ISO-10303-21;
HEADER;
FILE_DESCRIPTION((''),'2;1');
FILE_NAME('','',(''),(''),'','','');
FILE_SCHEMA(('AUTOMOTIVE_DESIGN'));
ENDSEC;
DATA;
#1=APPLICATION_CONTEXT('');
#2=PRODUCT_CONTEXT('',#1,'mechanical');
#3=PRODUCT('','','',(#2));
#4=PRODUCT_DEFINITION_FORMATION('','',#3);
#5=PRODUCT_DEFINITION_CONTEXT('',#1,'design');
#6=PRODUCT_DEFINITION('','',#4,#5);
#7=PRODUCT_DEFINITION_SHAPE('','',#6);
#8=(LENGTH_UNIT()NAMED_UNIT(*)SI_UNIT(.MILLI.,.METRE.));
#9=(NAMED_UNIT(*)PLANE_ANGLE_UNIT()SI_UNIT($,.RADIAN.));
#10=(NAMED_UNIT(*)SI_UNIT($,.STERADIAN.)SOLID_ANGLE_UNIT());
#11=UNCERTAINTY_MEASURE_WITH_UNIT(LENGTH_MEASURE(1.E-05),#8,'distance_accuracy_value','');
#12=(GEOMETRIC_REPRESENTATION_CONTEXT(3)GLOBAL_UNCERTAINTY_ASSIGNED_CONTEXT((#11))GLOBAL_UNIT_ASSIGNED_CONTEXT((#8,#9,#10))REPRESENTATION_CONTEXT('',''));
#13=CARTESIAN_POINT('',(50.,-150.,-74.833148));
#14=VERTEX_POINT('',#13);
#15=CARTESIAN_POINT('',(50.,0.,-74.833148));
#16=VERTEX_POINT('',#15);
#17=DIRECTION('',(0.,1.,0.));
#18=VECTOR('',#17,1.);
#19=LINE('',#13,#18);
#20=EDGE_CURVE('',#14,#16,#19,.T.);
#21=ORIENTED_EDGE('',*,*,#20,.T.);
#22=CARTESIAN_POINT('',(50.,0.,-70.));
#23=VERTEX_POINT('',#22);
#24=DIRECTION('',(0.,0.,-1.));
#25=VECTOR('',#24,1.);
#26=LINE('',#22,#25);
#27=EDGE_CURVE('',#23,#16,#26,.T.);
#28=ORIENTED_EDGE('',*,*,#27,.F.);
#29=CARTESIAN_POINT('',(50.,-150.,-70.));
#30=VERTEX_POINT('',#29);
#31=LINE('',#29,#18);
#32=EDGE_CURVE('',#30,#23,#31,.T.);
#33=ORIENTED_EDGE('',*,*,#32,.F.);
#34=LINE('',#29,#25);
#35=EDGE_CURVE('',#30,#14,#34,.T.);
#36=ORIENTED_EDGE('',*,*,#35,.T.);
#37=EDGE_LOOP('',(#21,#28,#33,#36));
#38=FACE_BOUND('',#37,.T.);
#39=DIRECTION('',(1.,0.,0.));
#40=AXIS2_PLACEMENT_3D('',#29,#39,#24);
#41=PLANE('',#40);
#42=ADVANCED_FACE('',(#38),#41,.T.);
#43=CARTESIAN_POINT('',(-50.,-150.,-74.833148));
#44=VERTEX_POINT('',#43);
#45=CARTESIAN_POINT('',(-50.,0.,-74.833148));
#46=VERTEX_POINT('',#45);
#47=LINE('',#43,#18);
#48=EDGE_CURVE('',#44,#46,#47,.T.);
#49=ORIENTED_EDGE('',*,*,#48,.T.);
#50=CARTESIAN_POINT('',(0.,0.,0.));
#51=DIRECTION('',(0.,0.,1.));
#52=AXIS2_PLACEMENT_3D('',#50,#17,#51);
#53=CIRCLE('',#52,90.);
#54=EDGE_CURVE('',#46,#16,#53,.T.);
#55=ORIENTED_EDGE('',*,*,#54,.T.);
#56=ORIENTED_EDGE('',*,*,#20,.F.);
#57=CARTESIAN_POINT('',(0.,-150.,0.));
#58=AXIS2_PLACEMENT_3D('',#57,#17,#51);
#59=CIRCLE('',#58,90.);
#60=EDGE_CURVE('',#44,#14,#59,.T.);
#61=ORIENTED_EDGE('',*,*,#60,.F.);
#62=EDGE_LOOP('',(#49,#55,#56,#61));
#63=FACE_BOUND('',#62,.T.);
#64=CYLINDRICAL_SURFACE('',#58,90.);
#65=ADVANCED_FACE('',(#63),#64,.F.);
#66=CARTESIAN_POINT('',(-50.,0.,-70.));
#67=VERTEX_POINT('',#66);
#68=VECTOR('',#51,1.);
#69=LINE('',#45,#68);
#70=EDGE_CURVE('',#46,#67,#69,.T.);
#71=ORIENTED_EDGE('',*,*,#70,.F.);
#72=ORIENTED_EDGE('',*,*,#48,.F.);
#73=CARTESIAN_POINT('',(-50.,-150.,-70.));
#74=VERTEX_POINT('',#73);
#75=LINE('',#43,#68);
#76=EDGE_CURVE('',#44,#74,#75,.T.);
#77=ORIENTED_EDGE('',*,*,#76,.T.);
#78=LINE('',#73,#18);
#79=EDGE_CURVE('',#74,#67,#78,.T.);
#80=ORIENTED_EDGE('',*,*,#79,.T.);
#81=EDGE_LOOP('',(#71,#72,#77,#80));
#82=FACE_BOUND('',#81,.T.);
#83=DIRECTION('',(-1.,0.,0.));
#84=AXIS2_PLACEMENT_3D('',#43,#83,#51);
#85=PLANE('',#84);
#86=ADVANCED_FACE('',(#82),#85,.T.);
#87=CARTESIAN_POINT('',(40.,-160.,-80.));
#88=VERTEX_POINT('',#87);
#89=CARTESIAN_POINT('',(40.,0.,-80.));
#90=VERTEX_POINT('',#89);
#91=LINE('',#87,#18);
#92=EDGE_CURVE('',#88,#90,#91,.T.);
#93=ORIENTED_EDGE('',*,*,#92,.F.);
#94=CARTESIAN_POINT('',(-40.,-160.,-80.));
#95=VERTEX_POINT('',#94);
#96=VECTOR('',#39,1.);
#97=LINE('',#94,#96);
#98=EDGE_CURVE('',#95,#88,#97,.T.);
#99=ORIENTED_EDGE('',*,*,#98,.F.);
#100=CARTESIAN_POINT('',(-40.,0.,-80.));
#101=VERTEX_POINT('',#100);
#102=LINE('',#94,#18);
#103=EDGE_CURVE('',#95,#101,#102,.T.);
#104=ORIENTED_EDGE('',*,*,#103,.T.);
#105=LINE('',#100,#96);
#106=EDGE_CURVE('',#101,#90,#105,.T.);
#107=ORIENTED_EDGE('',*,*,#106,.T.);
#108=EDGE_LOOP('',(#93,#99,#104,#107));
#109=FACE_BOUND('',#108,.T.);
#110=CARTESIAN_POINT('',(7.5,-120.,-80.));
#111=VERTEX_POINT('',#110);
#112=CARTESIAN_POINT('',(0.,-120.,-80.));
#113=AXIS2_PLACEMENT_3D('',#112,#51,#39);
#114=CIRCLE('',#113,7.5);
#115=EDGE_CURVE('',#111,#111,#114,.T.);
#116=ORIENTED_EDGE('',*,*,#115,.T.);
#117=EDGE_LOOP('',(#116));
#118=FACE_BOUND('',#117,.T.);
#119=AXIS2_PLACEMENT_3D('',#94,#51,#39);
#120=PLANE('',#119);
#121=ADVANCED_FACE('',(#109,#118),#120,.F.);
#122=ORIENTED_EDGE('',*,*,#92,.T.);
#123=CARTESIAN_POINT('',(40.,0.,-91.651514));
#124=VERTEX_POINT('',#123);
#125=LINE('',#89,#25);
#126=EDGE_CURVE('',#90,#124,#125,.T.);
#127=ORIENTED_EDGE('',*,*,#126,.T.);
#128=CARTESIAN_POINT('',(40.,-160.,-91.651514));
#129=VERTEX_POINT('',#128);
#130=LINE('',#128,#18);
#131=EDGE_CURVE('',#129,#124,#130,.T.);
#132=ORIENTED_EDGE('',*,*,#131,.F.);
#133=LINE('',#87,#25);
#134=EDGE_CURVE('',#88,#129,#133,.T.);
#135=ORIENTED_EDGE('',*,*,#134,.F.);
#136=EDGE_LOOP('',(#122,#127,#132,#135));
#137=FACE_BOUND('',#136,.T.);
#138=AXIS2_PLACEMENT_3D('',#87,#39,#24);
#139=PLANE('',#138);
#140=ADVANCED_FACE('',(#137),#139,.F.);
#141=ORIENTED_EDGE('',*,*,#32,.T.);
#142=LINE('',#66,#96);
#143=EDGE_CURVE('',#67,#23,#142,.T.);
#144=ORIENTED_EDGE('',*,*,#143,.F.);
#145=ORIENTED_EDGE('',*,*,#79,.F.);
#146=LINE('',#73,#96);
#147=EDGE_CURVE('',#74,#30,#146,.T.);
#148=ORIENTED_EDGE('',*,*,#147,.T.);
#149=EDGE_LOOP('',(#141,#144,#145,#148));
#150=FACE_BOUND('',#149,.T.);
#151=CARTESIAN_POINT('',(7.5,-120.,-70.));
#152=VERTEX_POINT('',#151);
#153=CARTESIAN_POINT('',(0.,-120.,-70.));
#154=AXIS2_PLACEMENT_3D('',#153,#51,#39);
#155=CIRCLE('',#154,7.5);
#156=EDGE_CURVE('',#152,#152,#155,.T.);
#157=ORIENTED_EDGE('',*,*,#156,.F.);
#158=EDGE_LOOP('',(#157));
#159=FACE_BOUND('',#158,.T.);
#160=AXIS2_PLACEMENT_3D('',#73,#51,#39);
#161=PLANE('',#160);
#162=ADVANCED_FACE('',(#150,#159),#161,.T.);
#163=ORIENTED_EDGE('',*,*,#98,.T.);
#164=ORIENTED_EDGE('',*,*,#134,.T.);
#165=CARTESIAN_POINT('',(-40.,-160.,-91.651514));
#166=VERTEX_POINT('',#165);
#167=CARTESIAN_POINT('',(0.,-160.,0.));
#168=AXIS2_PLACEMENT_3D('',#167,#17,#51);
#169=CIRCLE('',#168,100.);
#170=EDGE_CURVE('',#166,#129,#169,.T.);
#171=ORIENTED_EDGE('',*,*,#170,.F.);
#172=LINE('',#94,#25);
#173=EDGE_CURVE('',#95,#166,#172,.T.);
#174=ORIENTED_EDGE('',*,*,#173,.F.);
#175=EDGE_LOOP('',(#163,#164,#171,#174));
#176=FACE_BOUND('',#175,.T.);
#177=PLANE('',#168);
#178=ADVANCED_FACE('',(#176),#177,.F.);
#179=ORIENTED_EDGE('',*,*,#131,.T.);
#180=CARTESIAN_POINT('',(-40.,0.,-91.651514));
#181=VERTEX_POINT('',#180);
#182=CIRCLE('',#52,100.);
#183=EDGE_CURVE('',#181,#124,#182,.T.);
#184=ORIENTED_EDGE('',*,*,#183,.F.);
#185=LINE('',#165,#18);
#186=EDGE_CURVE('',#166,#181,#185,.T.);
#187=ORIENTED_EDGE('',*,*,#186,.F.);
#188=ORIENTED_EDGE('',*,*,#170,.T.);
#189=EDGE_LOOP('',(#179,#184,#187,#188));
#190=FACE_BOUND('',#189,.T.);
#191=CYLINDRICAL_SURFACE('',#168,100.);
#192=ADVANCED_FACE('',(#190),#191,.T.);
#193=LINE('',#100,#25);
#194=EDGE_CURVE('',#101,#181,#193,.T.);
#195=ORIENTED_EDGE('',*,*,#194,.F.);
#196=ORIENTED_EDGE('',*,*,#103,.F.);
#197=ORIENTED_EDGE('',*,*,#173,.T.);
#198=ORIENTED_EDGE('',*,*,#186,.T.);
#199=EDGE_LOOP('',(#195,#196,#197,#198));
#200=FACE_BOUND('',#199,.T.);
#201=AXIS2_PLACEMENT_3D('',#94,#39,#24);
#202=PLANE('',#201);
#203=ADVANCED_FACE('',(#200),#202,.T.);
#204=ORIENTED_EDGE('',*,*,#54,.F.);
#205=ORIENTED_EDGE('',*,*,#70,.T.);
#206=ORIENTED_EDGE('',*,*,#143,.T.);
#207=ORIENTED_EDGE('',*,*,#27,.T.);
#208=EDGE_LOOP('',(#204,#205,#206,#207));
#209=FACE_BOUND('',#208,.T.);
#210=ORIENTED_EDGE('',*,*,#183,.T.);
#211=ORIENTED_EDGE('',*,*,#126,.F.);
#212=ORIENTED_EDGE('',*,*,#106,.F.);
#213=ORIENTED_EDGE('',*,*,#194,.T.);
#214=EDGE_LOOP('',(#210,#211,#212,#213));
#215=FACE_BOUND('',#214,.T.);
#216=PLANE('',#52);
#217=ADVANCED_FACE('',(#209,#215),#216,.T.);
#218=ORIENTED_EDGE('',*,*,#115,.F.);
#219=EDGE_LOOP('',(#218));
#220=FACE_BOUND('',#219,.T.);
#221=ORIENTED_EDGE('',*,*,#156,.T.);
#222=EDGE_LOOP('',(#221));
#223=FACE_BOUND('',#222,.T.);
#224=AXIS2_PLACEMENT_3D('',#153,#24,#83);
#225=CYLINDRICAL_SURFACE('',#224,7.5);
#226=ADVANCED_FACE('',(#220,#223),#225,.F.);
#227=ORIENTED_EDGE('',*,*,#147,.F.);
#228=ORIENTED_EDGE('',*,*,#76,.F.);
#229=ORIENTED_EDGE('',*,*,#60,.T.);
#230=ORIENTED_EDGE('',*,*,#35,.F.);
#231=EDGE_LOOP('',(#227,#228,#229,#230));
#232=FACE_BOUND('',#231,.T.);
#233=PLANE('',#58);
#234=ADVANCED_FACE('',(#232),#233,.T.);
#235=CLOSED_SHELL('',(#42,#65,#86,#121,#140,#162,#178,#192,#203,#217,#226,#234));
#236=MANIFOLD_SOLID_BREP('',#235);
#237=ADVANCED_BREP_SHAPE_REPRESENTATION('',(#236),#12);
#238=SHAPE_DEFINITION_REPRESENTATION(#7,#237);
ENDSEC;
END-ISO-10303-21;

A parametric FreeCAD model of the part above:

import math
import FreeCAD as App
import Part
import Sketcher

V = App.Vector
Q = App.Units.Quantity

doc = App.newDocument("Part")
params = doc.addObject("Spreadsheet::Sheet", "Params")
for row, (alias, value) in enumerate([
    ("sketch1_radius", "100 mm"),
    ("sketch1_width", "80 mm"),
    ("pad1_length", "160 mm"),
    ("sketch2_radius", "90 mm"),
    ("sketch2_width", "100 mm"),
    ("pocket1_length", "150 mm"),
    ("sketch3_diameter", "15 mm"),
    ("pocket2_length", "10 mm"),
], start=1):
    params.set(f"A{row}", alias)
    params.set(f"B{row}", "=" + value)
    params.setAlias(f"B{row}", alias)

body = doc.addObject("PartDesign::Body", "Body")

# Sketch on XZ plane
sketch1 = body.newObject("Sketcher::SketchObject", "Sketch")
sketch1.AttachmentSupport = (doc.getObject("XZ_Plane"), [""])
sketch1.MapMode = "FlatFace"
sketch1.addGeometry([
    Part.LineSegment(V(40, -80, 0), V(-40, -80, 0)),
    Part.LineSegment(V(-40, -80, 0), V(-40, -91.651514, 0)),
    Part.ArcOfCircle(Part.Circle(V(0, 0, 0), V(0, 0, 1), 100), math.radians(-66.421822), math.radians(246.421822)),
    Part.LineSegment(V(40, -91.651514, 0), V(40, -80, 0)),
], False)
sketch1.addConstraint([
    Sketcher.Constraint("Coincident", 0, 2, 1, 1),
    Sketcher.Constraint("Coincident", 1, 2, 2, 2),
    Sketcher.Constraint("Coincident", 2, 1, 3, 1),
    Sketcher.Constraint("Coincident", 3, 2, 0, 1),
    Sketcher.Constraint("Horizontal", 0),
    Sketcher.Constraint("Vertical", 1),
    Sketcher.Constraint("Vertical", 3),
    Sketcher.Constraint("Coincident", 2, 3, -1, 1),
    Sketcher.Constraint("Horizontal", 1, 2, 2, 1),
    Sketcher.Constraint("Radius", 2, Q("100 mm")),
    Sketcher.Constraint("DistanceX", 0, 2, 0, 1, Q("80 mm")),
    Sketcher.Constraint("DistanceY", 0, 2, -1, 1, Q("80 mm")),
])
sketch1.setExpression("Constraints[9]", "Params.sketch1_radius")
sketch1.setExpression("Constraints[10]", "Params.sketch1_width")
pad1 = body.newObject("PartDesign::Pad", "Pad")
pad1.Profile = sketch1
pad1.setExpression("Length", "Params.pad1_length")

# Sketch on XZ plane
sketch2 = body.newObject("Sketcher::SketchObject", "Sketch001")
sketch2.AttachmentSupport = (doc.getObject("XZ_Plane"), [""])
sketch2.MapMode = "FlatFace"
sketch2.addGeometry([
    Part.LineSegment(V(-50, -70, 0), V(-50, -74.833148, 0)),
    Part.ArcOfCircle(Part.Circle(V(0, 0, 0), V(0, 0, 1), 90), math.radians(-56.251011), math.radians(236.251011)),
    Part.LineSegment(V(50, -74.833148, 0), V(50, -70, 0)),
    Part.LineSegment(V(50, -70, 0), V(-50, -70, 0)),
], False)
sketch2.addConstraint([
    Sketcher.Constraint("Coincident", 0, 2, 1, 2),
    Sketcher.Constraint("Coincident", 1, 1, 2, 1),
    Sketcher.Constraint("Coincident", 2, 2, 3, 1),
    Sketcher.Constraint("Coincident", 3, 2, 0, 1),
    Sketcher.Constraint("Vertical", 0),
    Sketcher.Constraint("Vertical", 2),
    Sketcher.Constraint("Horizontal", 3),
    Sketcher.Constraint("Coincident", 1, 3, -1, 1),
    Sketcher.Constraint("Horizontal", 0, 2, 1, 1),
    Sketcher.Constraint("Radius", 1, Q("90 mm")),
    Sketcher.Constraint("DistanceX", 3, 2, 3, 1, Q("100 mm")),
    Sketcher.Constraint("DistanceY", 2, 2, -1, 1, Q("70 mm")),
])
sketch2.setExpression("Constraints[9]", "Params.sketch2_radius")
sketch2.setExpression("Constraints[10]", "Params.sketch2_width")
pocket1 = body.newObject("PartDesign::Pocket", "Pocket")
pocket1.Profile = sketch2
pocket1.setExpression("Length", "Params.pocket1_length")
pocket1.Reversed = True

# Sketch on XY plane
sketch3 = body.newObject("Sketcher::SketchObject", "Sketch002")
sketch3.AttachmentSupport = (doc.getObject("XY_Plane"), [""])
sketch3.MapMode = "FlatFace"
sketch3.AttachmentOffset = App.Placement(V(0, 0, -80), App.Rotation())
sketch3.addGeometry(Part.Circle(V(0, -120, 0), V(0, 0, 1), 7.5), False)
sketch3.addConstraint([
    Sketcher.Constraint("PointOnObject", 0, 3, -2),
    Sketcher.Constraint("Diameter", 0, Q("15 mm")),
    Sketcher.Constraint("DistanceY", 0, 3, -1, 1, Q("120 mm")),
])
sketch3.setExpression("Constraints[1]", "Params.sketch3_diameter")
pocket2 = body.newObject("PartDesign::Pocket", "Pocket001")
pocket2.Profile = sketch3
pocket2.setExpression("Length", "Params.pocket2_length")
pocket2.Reversed = True

doc.recompute()
